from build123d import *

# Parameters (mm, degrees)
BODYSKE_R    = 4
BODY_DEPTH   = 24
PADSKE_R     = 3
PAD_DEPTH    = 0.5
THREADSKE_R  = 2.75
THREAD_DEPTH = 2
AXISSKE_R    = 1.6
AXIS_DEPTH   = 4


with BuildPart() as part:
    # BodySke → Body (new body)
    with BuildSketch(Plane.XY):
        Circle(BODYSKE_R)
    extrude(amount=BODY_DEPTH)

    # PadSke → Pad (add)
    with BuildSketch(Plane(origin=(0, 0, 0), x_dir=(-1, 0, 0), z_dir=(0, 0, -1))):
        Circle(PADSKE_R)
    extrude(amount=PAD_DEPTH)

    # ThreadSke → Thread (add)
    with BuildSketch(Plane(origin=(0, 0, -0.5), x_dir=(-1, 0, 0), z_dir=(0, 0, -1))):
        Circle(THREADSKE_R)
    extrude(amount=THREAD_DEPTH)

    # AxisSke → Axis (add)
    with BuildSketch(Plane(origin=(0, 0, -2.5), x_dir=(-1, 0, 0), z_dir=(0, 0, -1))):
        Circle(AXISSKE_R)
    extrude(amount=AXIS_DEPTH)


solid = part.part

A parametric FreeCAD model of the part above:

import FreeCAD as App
import Part
import Sketcher
from FreeCAD import Vector
Q = App.Units.Quantity

doc = App.newDocument("Part")
body = doc.addObject("PartDesign::Body", "Body")

# Sketch on XY plane
sketch1 = body.newObject("Sketcher::SketchObject", "Sketch")
sketch1.AttachmentSupport = (doc.getObject("XY_Plane"), [""])
sketch1.MapMode = "FlatFace"
sketch1.addGeometry(Part.Circle(Vector(0, 0, 0), Vector(0, 0, 1), 4), False)
sketch1.addConstraint([
    Sketcher.Constraint("Coincident", 0, 3, -1, 1),
    Sketcher.Constraint("Diameter", 0, Q("8 mm")),
])
pad1 = body.newObject("PartDesign::Pad", "Pad")
pad1.Profile = sketch1
pad1.Length = 24

# Sketch on XY plane
sketch2 = body.newObject("Sketcher::SketchObject", "Sketch001")
sketch2.AttachmentSupport = (doc.getObject("XY_Plane"), [""])
sketch2.MapMode = "FlatFace"
sketch2.addGeometry(Part.Circle(Vector(0, 0, 0), Vector(0, 0, 1), 3), False)
sketch2.addConstraint([
    Sketcher.Constraint("Coincident", 0, 3, -1, 1),
    Sketcher.Constraint("Diameter", 0, Q("6 mm")),
])
pad2 = body.newObject("PartDesign::Pad", "Pad001")
pad2.Profile = sketch2
pad2.Length = 0.5
pad2.Reversed = True

# Sketch on XY plane
sketch3 = body.newObject("Sketcher::SketchObject", "Sketch002")
sketch3.AttachmentSupport = (doc.getObject("XY_Plane"), [""])
sketch3.MapMode = "FlatFace"
sketch3.AttachmentOffset = App.Placement(Vector(0, 0, -0.5), App.Rotation())
sketch3.addGeometry(Part.Circle(Vector(0, 0, 0), Vector(0, 0, 1), 2.8), False)
sketch3.addConstraint([
    Sketcher.Constraint("Coincident", 0, 3, -1, 1),
    Sketcher.Constraint("Diameter", 0, Q("5.5 mm")),
])
pad3 = body.newObject("PartDesign::Pad", "Pad002")
pad3.Profile = sketch3
pad3.Length = 2
pad3.Reversed = True

# Sketch on XY plane
sketch4 = body.newObject("Sketcher::SketchObject", "Sketch003")
sketch4.AttachmentSupport = (doc.getObject("XY_Plane"), [""])
sketch4.MapMode = "FlatFace"
sketch4.AttachmentOffset = App.Placement(Vector(0, 0, -2.5), App.Rotation())
sketch4.addGeometry(Part.Circle(Vector(0, 0, 0), Vector(0, 0, 1), 1.6), False)
sketch4.addConstraint([
    Sketcher.Constraint("Coincident", 0, 3, -1, 1),
    Sketcher.Constraint("Diameter", 0, Q("3.2 mm")),
])
pad4 = body.newObject("PartDesign::Pad", "Pad003")
pad4.Profile = sketch4
pad4.Length = 4
pad4.Reversed = True

doc.recompute()
